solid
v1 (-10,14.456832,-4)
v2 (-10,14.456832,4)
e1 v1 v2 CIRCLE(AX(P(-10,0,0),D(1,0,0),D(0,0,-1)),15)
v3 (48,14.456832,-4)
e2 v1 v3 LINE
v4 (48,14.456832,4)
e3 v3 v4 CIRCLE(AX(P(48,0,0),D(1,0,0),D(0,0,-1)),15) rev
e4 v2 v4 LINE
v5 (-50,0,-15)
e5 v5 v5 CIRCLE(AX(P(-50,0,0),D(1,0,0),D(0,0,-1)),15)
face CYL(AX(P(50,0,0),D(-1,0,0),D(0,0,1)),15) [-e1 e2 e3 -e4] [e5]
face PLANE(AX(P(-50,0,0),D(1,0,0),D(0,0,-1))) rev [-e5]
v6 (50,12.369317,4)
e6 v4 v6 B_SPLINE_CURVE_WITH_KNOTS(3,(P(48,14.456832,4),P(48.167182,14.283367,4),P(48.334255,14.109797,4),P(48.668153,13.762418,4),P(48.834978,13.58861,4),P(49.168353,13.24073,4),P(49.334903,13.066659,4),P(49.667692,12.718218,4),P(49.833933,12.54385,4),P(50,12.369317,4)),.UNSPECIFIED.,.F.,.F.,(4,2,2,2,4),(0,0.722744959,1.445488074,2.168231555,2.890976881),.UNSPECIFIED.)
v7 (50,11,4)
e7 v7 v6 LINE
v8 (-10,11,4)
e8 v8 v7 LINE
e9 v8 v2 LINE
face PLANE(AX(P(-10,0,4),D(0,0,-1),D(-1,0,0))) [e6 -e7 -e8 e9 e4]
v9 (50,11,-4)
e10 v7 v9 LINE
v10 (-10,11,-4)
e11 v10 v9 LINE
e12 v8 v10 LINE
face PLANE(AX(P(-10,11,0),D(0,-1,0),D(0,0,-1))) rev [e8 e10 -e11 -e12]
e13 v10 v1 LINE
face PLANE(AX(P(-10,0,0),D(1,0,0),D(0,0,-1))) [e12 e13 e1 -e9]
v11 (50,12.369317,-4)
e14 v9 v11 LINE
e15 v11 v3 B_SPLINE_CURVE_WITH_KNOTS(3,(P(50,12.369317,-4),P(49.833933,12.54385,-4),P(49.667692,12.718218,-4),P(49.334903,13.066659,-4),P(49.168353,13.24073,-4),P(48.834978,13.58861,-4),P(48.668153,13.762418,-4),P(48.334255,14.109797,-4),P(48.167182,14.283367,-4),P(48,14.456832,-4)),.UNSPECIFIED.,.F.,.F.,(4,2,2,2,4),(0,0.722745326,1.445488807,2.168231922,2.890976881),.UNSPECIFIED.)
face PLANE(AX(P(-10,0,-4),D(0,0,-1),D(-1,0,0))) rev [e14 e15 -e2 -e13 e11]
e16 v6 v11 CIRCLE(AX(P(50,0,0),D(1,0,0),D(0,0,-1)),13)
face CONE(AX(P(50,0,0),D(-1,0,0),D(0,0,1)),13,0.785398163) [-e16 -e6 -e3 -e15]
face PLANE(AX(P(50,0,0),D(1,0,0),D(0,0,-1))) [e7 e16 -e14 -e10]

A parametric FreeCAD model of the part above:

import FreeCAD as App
import Part
import Sketcher

V = App.Vector


def edges_at(feature, points):
    """Names of the edges that pass closest to the given points."""
    edges = feature.Shape.Edges
    near = lambda p: min(range(len(edges)), key=lambda i: edges[i].distToShape(Part.Vertex(*p))[0])
    return sorted({f"Edge{near(p) + 1}" for p in points})

doc = App.newDocument("Part")
body = doc.addObject("PartDesign::Body", "Body")

sketch1 = body.newObject("Sketcher::SketchObject", "Sketch")
sketch1.AttachmentSupport = (doc.getObject("YZ_Plane"), [""])
sketch1.MapMode = "FlatFace"
sketch1.addGeometry(Part.Circle(V(0, 0, 0), V(0, 0, 1), 15), False)
sketch1.addConstraint(Sketcher.Constraint("Coincident", 0, 3, -1, 1))
sketch1.addConstraint(Sketcher.Constraint("Diameter", 0, 30.0))
pad1 = body.newObject("PartDesign::Pad", "Pad")
pad1.Profile = sketch1
pad1.Length = 100
pad1.Midplane = True

sketch2 = body.newObject("Sketcher::SketchObject", "Sketch001")
sketch2.AttachmentSupport = (doc.getObject("YZ_Plane"), [""])
sketch2.MapMode = "FlatFace"
sketch2.AttachmentOffset = App.Placement(V(0, 0, 50), App.Rotation())
sketch2.addGeometry(Part.LineSegment(V(11, 4, 0), V(11, -4, 0)), False)
sketch2.addGeometry(Part.LineSegment(V(11, -4, 0), V(255, -4, 0)), False)
sketch2.addGeometry(Part.LineSegment(V(255, -4, 0), V(255, 4, 0)), False)
sketch2.addGeometry(Part.LineSegment(V(255, 4, 0), V(11, 4, 0)), False)
sketch2.addConstraint(Sketcher.Constraint("Coincident", 0, 2, 1, 1))
sketch2.addConstraint(Sketcher.Constraint("Coincident", 1, 2, 2, 1))
sketch2.addConstraint(Sketcher.Constraint("Coincident", 2, 2, 3, 1))
sketch2.addConstraint(Sketcher.Constraint("Coincident", 3, 2, 0, 1))
sketch2.addConstraint(Sketcher.Constraint("Vertical", 0))
sketch2.addConstraint(Sketcher.Constraint("Horizontal", 1))
sketch2.addConstraint(Sketcher.Constraint("Vertical", 2))
sketch2.addConstraint(Sketcher.Constraint("Horizontal", 3))
sketch2.addConstraint(Sketcher.Constraint("DistanceY", 0, 2, 0, 1, 8.0))
sketch2.addConstraint(Sketcher.Constraint("DistanceX", -1, 1, 0, 2, 11.0))
sketch2.addConstraint(Sketcher.Constraint("DistanceY", 0, 2, -1, 1, 4.0))
sketch2.addConstraint(Sketcher.Constraint("DistanceX", 1, 1, 1, 2, 243.774161))
pocket1 = body.newObject("PartDesign::Pocket", "Pocket")
pocket1.Profile = sketch2
pocket1.Length = 60
doc.recompute()

chamfer = body.newObject("PartDesign::Chamfer", "Chamfer")
chamfer.Base = (pocket1, edges_at(pocket1, [(50, -11.937, 9.083)]))
chamfer.Size = 2

doc.recompute()
